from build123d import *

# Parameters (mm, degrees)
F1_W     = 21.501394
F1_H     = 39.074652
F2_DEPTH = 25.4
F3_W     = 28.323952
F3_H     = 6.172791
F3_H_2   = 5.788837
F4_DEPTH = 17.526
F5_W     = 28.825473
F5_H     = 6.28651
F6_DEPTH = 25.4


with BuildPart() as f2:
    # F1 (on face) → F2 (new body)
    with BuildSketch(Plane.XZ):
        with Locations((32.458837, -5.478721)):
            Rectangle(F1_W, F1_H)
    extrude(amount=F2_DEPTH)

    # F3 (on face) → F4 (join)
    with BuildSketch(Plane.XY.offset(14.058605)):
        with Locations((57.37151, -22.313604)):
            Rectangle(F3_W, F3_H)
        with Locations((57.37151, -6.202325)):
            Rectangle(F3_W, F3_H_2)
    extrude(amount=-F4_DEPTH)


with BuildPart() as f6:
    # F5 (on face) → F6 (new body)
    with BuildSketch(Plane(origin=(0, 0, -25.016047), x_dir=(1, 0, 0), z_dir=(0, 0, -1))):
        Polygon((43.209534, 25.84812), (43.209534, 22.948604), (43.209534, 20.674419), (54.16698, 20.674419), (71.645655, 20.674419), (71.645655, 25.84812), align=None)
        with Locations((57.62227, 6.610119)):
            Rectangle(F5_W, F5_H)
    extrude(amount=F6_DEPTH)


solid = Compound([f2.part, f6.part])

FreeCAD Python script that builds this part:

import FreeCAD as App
import Part
import Sketcher

V = App.Vector
Q = App.Units.Quantity


def add_polygon(sketch, points):
    """Adds a closed chain of lines whose ends are joined by coincident constraints."""
    first, n = sketch.GeometryCount, len(points)
    for a, b in zip(points, points[1:] + points[:1]):
        sketch.addGeometry(Part.LineSegment(App.Vector(*a, 0), App.Vector(*b, 0)), False)
    for i in range(n):
        sketch.addConstraint(Sketcher.Constraint("Coincident", first + i, 2, first + (i + 1) % n, 1))

doc = App.newDocument("Part")
params = doc.addObject("Spreadsheet::Sheet", "Params")
for row, (alias, value) in enumerate([
    ("pad1_length", "1 in"),
    ("pad2_length", "0.69 in"),
    ("pad3_length", "1 in"),
], start=1):
    params.set(f"A{row}", alias)
    params.set(f"B{row}", "=" + value)
    params.setAlias(f"B{row}", alias)

body = doc.addObject("PartDesign::Body", "Body")

# Sketch on XZ plane
sketch1 = body.newObject("Sketcher::SketchObject", "Sketch")
sketch1.AttachmentSupport = (doc.getObject("XZ_Plane"), [""])
sketch1.MapMode = "FlatFace"
add_polygon(sketch1, [(22, 14), (22, -25), (43, -25), (43, 14)])  # lines 0-3
sketch1.addConstraint([
    Sketcher.Constraint("Vertical", 0),
    Sketcher.Constraint("Horizontal", 1),
    Sketcher.Constraint("Vertical", 2),
    Sketcher.Constraint("Horizontal", 3),
    Sketcher.Constraint("DistanceX", 1, 1, 1, 2, Q("21.501394 mm")),
    Sketcher.Constraint("DistanceY", 0, 2, 0, 1, Q("39.074652 mm")),
    Sketcher.Constraint("DistanceX", -1, 1, 0, 2, Q("21.70814 mm")),
    Sketcher.Constraint("DistanceY", 0, 2, -1, 1, Q("25.016047 mm")),
])
pad1 = body.newObject("PartDesign::Pad", "Pad")
pad1.Profile = sketch1
pad1.setExpression("Length", "Params.pad1_length")

# Sketch on XY plane
sketch2 = body.newObject("Sketcher::SketchObject", "Sketch001")
sketch2.AttachmentSupport = (doc.getObject("XY_Plane"), [""])
sketch2.MapMode = "FlatFace"
sketch2.AttachmentOffset = App.Placement(V(0, 0, 14.058605), App.Rotation())
add_polygon(sketch2, [(43, -19), (43, -25), (72, -25), (72, -19)])  # lines 0-3
add_polygon(sketch2, [(43, -3), (43, -9), (72, -9), (72, -3)])  # lines 4-7
sketch2.addConstraint([
    Sketcher.Constraint("Vertical", 0),
    Sketcher.Constraint("Horizontal", 1),
    Sketcher.Constraint("Vertical", 2),
    Sketcher.Constraint("Horizontal", 3),
    Sketcher.Constraint("Vertical", 4),
    Sketcher.Constraint("Horizontal", 5),
    Sketcher.Constraint("Vertical", 6),
    Sketcher.Constraint("Horizontal", 7),
    Sketcher.Constraint("Vertical", 3, 2, 4, 2),
    Sketcher.Constraint("Vertical", 2, 2, 5, 2),
    Sketcher.Constraint("DistanceY", 0, 2, -1, 1, Q("1 in")),
    Sketcher.Constraint("DistanceX", 1, 1, 1, 2, Q("28.323952 mm")),
    Sketcher.Constraint("DistanceY", 0, 2, 0, 1, Q("6.172791 mm")),
    Sketcher.Constraint("DistanceY", 4, 2, 4, 1, Q("5.788837 mm")),
    Sketcher.Constraint("DistanceX", -1, 1, 0, 2, Q("43.209534 mm")),
    Sketcher.Constraint("DistanceY", 4, 2, -1, 1, Q("9.096744 mm")),
])
pad2 = body.newObject("PartDesign::Pad", "Pad001")
pad2.Profile = sketch2
pad2.setExpression("Length", "Params.pad2_length")
pad2.Reversed = True
body2 = doc.addObject("PartDesign::Body", "Body001")
body2.AllowCompound = True

# Sketch on XY plane
sketch3 = body2.newObject("Sketcher::SketchObject", "Sketch002")
sketch3.AttachmentSupport = (doc.getObject("XY_Plane001"), [""])
sketch3.MapMode = "FlatFace"
sketch3.AttachmentOffset = App.Placement(V(0, 0, -25.016047), App.Rotation())
add_polygon(sketch3, [(43, -26), (43, -21), (72, -21), (72, -26)])  # lines 0-3
add_polygon(sketch3, [(43, -10), (43, -3), (72, -3), (72, -10)])  # lines 4-7
sketch3.addConstraint([
    Sketcher.Constraint("Vertical", 0),
    Sketcher.Constraint("Horizontal", 1),
    Sketcher.Constraint("Vertical", 2),
    Sketcher.Constraint("Horizontal", 3),
    Sketcher.Constraint("Vertical", 4),
    Sketcher.Constraint("Horizontal", 5),
    Sketcher.Constraint("Vertical", 6),
    Sketcher.Constraint("Horizontal", 7),
    Sketcher.Constraint("Vertical", 3, 2, 4, 2),
    Sketcher.Constraint("DistanceY", 0, 1, 0, 2, Q("5.173701 mm")),
    Sketcher.Constraint("DistanceX", 1, 1, 1, 2, Q("28.436121 mm")),
    Sketcher.Constraint("DistanceY", 4, 1, 4, 2, Q("6.28651 mm")),
    Sketcher.Constraint("DistanceX", 5, 1, 5, 2, Q("28.825473 mm")),
    Sketcher.Constraint("DistanceY", 0, 2, -1, 1, Q("20.674419 mm")),
    Sketcher.Constraint("DistanceX", -1, 1, 0, 2, Q("43.209534 mm")),
    Sketcher.Constraint("DistanceY", 4, 2, -1, 1, Q("3.466864 mm")),
])
pad3 = body2.newObject("PartDesign::Pad", "Pad002")
pad3.Profile = sketch3
pad3.setExpression("Length", "Params.pad3_length")
pad3.Reversed = True

doc.recompute()
